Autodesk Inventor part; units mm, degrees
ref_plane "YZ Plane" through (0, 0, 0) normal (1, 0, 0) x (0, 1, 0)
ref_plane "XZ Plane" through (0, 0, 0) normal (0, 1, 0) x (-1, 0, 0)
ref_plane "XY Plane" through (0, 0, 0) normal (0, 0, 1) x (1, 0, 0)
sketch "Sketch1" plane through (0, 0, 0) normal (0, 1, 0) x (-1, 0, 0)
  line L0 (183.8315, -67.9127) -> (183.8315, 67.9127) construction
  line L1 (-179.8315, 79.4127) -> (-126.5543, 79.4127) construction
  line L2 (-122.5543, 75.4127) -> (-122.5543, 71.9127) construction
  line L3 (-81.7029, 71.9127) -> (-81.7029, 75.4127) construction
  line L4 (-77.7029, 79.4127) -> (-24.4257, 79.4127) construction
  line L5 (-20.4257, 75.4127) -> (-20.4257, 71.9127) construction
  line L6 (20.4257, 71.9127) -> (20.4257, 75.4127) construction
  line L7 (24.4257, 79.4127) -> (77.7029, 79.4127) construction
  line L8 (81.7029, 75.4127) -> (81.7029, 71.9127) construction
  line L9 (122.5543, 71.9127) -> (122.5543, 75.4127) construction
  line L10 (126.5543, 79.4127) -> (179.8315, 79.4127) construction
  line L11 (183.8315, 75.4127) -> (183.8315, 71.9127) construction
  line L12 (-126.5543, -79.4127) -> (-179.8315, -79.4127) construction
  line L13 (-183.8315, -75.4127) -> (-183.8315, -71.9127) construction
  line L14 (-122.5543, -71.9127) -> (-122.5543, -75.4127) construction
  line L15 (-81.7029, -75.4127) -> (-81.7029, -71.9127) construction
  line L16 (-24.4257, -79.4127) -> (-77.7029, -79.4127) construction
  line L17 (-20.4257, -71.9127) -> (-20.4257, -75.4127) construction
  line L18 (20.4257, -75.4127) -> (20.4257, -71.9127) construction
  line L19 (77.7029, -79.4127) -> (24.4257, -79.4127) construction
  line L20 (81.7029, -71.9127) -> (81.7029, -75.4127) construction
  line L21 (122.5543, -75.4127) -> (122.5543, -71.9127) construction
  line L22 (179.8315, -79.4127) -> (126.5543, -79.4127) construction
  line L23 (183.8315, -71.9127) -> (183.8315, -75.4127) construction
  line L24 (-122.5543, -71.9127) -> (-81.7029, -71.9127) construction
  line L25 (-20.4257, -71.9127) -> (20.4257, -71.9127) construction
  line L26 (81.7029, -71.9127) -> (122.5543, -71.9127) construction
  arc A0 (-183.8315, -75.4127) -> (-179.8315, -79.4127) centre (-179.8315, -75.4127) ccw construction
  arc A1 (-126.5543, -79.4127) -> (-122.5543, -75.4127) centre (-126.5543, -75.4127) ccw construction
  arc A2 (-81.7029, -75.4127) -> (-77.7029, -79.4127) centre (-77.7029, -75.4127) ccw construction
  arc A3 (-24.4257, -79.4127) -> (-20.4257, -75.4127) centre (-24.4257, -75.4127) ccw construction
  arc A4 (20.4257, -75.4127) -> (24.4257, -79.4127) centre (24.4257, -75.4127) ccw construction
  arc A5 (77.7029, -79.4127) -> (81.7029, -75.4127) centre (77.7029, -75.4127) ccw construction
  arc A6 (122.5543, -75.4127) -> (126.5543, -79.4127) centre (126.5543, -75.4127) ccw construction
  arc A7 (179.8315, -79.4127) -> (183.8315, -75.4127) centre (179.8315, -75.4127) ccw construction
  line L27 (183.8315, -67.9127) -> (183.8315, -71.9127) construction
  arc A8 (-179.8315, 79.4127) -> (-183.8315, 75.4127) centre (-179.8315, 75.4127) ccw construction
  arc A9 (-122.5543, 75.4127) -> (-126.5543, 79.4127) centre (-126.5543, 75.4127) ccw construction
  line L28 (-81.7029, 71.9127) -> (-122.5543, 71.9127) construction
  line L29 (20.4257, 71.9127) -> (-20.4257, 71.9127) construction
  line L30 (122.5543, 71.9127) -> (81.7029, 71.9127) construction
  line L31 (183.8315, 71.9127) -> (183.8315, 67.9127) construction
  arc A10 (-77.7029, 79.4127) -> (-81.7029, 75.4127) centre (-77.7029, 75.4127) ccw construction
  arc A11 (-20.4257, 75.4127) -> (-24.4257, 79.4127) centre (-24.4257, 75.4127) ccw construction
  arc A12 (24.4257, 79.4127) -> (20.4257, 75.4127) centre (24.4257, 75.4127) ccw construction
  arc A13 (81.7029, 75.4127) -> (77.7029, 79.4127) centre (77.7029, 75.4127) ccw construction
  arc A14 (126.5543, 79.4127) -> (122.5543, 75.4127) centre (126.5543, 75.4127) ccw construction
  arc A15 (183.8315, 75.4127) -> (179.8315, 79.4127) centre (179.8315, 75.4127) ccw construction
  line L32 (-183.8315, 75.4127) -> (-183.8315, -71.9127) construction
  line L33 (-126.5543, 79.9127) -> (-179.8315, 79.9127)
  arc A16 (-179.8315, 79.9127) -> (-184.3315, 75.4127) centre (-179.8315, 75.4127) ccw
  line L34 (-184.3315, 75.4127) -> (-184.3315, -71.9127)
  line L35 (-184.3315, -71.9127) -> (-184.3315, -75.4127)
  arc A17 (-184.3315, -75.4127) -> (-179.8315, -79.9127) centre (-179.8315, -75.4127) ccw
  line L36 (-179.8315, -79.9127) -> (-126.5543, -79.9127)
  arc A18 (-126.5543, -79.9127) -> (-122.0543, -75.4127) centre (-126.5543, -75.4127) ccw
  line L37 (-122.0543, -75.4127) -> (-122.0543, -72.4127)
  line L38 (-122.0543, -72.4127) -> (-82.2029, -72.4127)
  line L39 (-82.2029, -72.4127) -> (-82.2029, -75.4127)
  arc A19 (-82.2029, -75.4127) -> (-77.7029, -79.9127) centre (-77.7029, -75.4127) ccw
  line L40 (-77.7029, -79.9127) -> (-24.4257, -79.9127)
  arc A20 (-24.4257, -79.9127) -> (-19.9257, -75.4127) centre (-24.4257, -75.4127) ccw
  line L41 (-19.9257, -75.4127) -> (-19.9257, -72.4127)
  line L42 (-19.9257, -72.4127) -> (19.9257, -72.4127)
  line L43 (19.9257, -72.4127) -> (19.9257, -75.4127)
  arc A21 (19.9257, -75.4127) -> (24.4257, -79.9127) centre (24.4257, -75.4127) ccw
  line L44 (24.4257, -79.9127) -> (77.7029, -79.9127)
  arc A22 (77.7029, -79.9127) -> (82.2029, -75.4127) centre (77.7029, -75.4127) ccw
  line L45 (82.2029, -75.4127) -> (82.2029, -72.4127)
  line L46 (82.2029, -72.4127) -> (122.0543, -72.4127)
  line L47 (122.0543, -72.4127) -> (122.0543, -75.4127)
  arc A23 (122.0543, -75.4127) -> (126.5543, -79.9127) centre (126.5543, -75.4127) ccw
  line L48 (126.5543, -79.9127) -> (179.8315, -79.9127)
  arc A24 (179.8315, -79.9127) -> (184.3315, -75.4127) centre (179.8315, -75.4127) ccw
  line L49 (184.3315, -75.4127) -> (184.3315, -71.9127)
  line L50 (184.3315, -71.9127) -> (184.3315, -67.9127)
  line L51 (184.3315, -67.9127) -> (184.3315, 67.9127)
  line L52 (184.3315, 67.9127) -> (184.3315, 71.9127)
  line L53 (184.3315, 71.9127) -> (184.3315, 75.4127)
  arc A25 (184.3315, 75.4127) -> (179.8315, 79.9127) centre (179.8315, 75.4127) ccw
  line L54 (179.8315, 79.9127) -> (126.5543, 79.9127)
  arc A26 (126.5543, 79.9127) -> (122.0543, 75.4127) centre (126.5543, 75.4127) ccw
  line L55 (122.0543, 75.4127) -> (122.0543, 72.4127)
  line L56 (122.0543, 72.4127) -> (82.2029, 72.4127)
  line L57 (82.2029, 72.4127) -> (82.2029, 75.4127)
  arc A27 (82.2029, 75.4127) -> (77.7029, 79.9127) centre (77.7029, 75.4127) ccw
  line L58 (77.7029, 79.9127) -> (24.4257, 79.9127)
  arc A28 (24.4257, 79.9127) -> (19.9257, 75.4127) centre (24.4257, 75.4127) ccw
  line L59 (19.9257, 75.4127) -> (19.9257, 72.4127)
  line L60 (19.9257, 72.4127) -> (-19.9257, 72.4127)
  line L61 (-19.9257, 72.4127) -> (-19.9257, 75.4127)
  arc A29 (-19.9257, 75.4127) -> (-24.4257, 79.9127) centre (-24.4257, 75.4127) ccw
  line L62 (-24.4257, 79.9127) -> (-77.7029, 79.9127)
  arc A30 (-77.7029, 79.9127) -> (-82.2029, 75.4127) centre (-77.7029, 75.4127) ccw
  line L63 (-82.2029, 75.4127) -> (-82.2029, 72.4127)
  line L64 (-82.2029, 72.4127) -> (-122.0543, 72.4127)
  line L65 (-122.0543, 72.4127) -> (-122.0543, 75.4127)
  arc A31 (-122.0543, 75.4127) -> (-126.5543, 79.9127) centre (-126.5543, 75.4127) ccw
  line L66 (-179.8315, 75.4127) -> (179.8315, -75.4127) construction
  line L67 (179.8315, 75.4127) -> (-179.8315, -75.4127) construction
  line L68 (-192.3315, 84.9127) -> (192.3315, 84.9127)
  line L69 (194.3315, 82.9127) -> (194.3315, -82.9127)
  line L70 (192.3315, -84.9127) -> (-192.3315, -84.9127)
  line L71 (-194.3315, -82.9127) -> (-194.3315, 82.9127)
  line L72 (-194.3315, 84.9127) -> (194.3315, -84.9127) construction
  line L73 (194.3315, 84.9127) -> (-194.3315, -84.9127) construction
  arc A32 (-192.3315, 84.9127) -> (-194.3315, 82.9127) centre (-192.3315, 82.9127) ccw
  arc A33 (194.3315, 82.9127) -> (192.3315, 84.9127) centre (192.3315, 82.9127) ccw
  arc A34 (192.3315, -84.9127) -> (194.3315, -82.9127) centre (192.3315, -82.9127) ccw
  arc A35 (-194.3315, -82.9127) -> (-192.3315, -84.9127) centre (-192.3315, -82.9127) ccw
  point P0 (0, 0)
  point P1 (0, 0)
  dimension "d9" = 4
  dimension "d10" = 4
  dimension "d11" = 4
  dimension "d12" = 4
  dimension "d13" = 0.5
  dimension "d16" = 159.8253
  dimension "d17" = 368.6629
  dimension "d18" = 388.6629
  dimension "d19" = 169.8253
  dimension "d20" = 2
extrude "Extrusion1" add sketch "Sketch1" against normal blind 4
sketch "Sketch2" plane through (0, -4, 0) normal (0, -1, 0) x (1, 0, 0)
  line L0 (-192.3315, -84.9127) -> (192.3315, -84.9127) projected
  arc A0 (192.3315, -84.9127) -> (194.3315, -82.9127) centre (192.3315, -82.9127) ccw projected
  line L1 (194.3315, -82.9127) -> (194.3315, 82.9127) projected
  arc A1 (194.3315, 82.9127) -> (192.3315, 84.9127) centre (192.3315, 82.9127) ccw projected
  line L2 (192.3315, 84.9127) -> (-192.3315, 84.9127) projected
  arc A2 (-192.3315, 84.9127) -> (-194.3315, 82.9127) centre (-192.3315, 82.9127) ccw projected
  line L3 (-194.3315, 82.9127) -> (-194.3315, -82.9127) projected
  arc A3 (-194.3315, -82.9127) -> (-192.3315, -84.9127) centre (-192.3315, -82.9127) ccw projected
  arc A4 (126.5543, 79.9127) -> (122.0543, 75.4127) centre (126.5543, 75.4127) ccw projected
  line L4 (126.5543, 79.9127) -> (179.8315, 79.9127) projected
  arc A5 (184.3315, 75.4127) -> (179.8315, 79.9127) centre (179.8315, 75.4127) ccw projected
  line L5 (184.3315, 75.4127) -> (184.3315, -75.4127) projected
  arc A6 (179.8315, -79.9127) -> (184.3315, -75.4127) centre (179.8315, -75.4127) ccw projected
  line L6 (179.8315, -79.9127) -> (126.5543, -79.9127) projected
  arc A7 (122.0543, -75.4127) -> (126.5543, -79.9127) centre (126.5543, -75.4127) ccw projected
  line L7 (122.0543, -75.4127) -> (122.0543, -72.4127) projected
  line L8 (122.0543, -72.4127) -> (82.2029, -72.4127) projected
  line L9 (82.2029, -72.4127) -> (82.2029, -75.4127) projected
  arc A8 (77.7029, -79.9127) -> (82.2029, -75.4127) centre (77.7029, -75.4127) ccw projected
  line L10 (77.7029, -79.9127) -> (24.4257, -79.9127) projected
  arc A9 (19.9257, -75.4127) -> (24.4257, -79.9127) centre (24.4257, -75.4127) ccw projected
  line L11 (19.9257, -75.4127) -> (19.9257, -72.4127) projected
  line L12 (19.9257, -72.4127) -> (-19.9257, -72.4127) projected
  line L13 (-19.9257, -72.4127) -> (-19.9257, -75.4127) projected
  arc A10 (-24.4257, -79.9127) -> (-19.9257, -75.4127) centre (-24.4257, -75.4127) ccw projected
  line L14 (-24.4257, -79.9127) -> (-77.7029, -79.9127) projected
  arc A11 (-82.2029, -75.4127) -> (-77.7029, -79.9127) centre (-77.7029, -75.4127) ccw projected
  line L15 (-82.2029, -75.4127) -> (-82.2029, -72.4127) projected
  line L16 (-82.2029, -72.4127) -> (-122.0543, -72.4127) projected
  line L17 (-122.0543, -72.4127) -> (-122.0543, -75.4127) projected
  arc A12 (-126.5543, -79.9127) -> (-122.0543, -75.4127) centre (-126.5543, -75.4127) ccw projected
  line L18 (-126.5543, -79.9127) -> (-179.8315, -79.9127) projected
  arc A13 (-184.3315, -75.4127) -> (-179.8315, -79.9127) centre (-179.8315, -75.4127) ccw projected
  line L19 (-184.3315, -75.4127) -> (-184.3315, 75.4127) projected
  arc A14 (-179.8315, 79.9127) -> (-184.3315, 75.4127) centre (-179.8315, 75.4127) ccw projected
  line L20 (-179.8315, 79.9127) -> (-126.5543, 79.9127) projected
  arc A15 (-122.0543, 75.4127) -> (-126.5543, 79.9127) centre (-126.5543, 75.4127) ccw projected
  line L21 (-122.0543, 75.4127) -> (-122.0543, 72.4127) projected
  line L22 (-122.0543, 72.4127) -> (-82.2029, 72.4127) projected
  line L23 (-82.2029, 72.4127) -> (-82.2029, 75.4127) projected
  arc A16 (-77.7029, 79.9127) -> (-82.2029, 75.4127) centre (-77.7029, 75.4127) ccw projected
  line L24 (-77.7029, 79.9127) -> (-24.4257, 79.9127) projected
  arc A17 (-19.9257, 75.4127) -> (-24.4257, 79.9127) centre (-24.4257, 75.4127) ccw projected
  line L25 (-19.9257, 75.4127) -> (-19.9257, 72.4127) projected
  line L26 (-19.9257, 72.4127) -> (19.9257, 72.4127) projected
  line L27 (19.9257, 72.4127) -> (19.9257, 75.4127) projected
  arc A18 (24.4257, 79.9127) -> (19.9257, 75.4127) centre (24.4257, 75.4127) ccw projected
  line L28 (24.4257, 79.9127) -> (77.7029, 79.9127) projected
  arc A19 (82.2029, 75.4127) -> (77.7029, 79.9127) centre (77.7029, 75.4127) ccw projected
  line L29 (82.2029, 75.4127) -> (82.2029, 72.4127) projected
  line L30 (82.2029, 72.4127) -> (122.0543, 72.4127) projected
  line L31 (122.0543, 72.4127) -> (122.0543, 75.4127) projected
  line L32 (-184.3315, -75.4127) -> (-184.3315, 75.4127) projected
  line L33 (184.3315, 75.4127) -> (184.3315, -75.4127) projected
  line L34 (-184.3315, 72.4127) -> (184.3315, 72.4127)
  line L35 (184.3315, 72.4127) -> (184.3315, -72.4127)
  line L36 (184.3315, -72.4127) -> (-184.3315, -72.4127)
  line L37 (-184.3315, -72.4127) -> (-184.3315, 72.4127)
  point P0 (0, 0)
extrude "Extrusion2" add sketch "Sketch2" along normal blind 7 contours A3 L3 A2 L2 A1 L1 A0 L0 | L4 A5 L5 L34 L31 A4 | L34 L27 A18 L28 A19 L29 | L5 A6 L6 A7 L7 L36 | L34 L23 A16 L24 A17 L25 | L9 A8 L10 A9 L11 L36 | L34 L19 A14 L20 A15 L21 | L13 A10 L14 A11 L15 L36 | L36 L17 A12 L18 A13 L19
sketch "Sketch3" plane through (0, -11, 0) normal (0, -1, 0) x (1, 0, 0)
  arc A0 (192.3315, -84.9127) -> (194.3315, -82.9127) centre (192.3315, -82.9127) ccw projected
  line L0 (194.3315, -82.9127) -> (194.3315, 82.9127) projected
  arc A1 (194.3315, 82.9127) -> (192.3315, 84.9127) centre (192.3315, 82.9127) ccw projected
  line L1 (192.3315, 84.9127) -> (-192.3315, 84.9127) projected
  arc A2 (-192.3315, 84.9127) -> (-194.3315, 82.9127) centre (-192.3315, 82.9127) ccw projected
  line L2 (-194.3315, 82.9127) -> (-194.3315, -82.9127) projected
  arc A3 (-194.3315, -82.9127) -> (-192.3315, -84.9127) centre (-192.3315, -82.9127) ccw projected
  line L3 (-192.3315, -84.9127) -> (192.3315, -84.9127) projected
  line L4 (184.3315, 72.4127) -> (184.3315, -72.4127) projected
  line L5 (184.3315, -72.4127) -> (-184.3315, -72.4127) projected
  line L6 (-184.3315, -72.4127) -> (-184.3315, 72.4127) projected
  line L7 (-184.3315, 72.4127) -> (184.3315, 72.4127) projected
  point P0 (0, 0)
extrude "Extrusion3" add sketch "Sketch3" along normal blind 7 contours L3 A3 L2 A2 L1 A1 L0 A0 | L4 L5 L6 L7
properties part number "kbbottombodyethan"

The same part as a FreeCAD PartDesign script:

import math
import FreeCAD as App
import Part
import Sketcher

doc = App.newDocument("Part")
body = doc.addObject("PartDesign::Body", "Body")

# Sketch on XZ plane
sketch1 = body.newObject("Sketcher::SketchObject", "Sketch")
sketch1.AttachmentSupport = (doc.getObject("XZ_Plane"), [""])
sketch1.MapMode = "FlatFace"
sketch1.addGeometry([
    Part.LineSegment(App.Vector(-192.3, 84.9, 0), App.Vector(192.3, 84.9, 0)),  # 0
    Part.ArcOfCircle(Part.Circle(App.Vector(192.3, 82.9, 0), App.Vector(0, 0, 1), 2), math.radians(0), math.radians(90)),  # 1
    Part.LineSegment(App.Vector(194.3, 82.9, 0), App.Vector(194.3, -82.9, 0)),  # 2
    Part.ArcOfCircle(Part.Circle(App.Vector(192.3, -82.9, 0), App.Vector(0, 0, 1), 2), math.radians(-90), math.radians(0)),  # 3
    Part.LineSegment(App.Vector(192.3, -84.9, 0), App.Vector(-192.3, -84.9, 0)),  # 4
    Part.ArcOfCircle(Part.Circle(App.Vector(-192.3, -82.9, 0), App.Vector(0, 0, 1), 2), math.radians(180), math.radians(270)),  # 5
    Part.LineSegment(App.Vector(-194.3, -82.9, 0), App.Vector(-194.3, 82.9, 0)),  # 6
    Part.ArcOfCircle(Part.Circle(App.Vector(-192.3, 82.9, 0), App.Vector(0, 0, 1), 2), math.radians(90), math.radians(180)),  # 7
    Part.LineSegment(App.Vector(179.8, 79.9, 0), App.Vector(126.6, 79.9, 0)),  # 8
    Part.ArcOfCircle(Part.Circle(App.Vector(126.6, 75.4, 0), App.Vector(0, 0, 1), 4.5), math.radians(90), math.radians(180)),  # 9
    Part.LineSegment(App.Vector(122.1, 75.4, 0), App.Vector(122.1, 72.4, 0)),  # 10
    Part.LineSegment(App.Vector(122.1, 72.4, 0), App.Vector(82.2, 72.4, 0)),  # 11
    Part.LineSegment(App.Vector(82.2, 72.4, 0), App.Vector(82.2, 75.4, 0)),  # 12
    Part.ArcOfCircle(Part.Circle(App.Vector(77.7, 75.4, 0), App.Vector(0, 0, 1), 4.5), math.radians(0), math.radians(90)),  # 13
    Part.LineSegment(App.Vector(77.7, 79.9, 0), App.Vector(24.4, 79.9, 0)),  # 14
    Part.ArcOfCircle(Part.Circle(App.Vector(24.4, 75.4, 0), App.Vector(0, 0, 1), 4.5), math.radians(90), math.radians(180)),  # 15
    Part.LineSegment(App.Vector(19.9, 75.4, 0), App.Vector(19.9, 72.4, 0)),  # 16
    Part.LineSegment(App.Vector(19.9, 72.4, 0), App.Vector(-19.9, 72.4, 0)),  # 17
    Part.LineSegment(App.Vector(-19.9, 72.4, 0), App.Vector(-19.9, 75.4, 0)),  # 18
    Part.ArcOfCircle(Part.Circle(App.Vector(-24.4, 75.4, 0), App.Vector(0, 0, 1), 4.5), math.radians(0), math.radians(90)),  # 19
    Part.LineSegment(App.Vector(-24.4, 79.9, 0), App.Vector(-77.7, 79.9, 0)),  # 20
    Part.ArcOfCircle(Part.Circle(App.Vector(-77.7, 75.4, 0), App.Vector(0, 0, 1), 4.5), math.radians(90), math.radians(180)),  # 21
    Part.LineSegment(App.Vector(-82.2, 75.4, 0), App.Vector(-82.2, 72.4, 0)),  # 22
    Part.LineSegment(App.Vector(-82.2, 72.4, 0), App.Vector(-122.1, 72.4, 0)),  # 23
    Part.LineSegment(App.Vector(-122.1, 72.4, 0), App.Vector(-122.1, 75.4, 0)),  # 24
    Part.ArcOfCircle(Part.Circle(App.Vector(-126.6, 75.4, 0), App.Vector(0, 0, 1), 4.5), math.radians(0), math.radians(90)),  # 25
    Part.LineSegment(App.Vector(-126.6, 79.9, 0), App.Vector(-179.8, 79.9, 0)),  # 26
    Part.ArcOfCircle(Part.Circle(App.Vector(-179.8, 75.4, 0), App.Vector(0, 0, 1), 4.5), math.radians(90), math.radians(180)),  # 27
    Part.LineSegment(App.Vector(-184.3, 75.4, 0), App.Vector(-184.3, -75.4, 0)),  # 28
    Part.ArcOfCircle(Part.Circle(App.Vector(-179.8, -75.4, 0), App.Vector(0, 0, 1), 4.5), math.radians(180), math.radians(270)),  # 29
    Part.LineSegment(App.Vector(-179.8, -79.9, 0), App.Vector(-126.6, -79.9, 0)),  # 30
    Part.ArcOfCircle(Part.Circle(App.Vector(-126.6, -75.4, 0), App.Vector(0, 0, 1), 4.5), math.radians(-90), math.radians(0)),  # 31
    Part.LineSegment(App.Vector(-122.1, -75.4, 0), App.Vector(-122.1, -72.4, 0)),  # 32
    Part.LineSegment(App.Vector(-122.1, -72.4, 0), App.Vector(-82.2, -72.4, 0)),  # 33
    Part.LineSegment(App.Vector(-82.2, -72.4, 0), App.Vector(-82.2, -75.4, 0)),  # 34
    Part.ArcOfCircle(Part.Circle(App.Vector(-77.7, -75.4, 0), App.Vector(0, 0, 1), 4.5), math.radians(180), math.radians(270)),  # 35
    Part.LineSegment(App.Vector(-77.7, -79.9, 0), App.Vector(-24.4, -79.9, 0)),  # 36
    Part.ArcOfCircle(Part.Circle(App.Vector(-24.4, -75.4, 0), App.Vector(0, 0, 1), 4.5), math.radians(-90), math.radians(0)),  # 37
    Part.LineSegment(App.Vector(-19.9, -75.4, 0), App.Vector(-19.9, -72.4, 0)),  # 38
    Part.LineSegment(App.Vector(-19.9, -72.4, 0), App.Vector(19.9, -72.4, 0)),  # 39
    Part.LineSegment(App.Vector(19.9, -72.4, 0), App.Vector(19.9, -75.4, 0)),  # 40
    Part.ArcOfCircle(Part.Circle(App.Vector(24.4, -75.4, 0), App.Vector(0, 0, 1), 4.5), math.radians(180), math.radians(270)),  # 41
    Part.LineSegment(App.Vector(24.4, -79.9, 0), App.Vector(77.7, -79.9, 0)),  # 42
    Part.ArcOfCircle(Part.Circle(App.Vector(77.7, -75.4, 0), App.Vector(0, 0, 1), 4.5), math.radians(-90), math.radians(0)),  # 43
    Part.LineSegment(App.Vector(82.2, -75.4, 0), App.Vector(82.2, -72.4, 0)),  # 44
    Part.LineSegment(App.Vector(82.2, -72.4, 0), App.Vector(122.1, -72.4, 0)),  # 45
    Part.LineSegment(App.Vector(122.1, -72.4, 0), App.Vector(122.1, -75.4, 0)),  # 46
    Part.ArcOfCircle(Part.Circle(App.Vector(126.6, -75.4, 0), App.Vector(0, 0, 1), 4.5), math.radians(180), math.radians(270)),  # 47
    Part.LineSegment(App.Vector(126.6, -79.9, 0), App.Vector(179.8, -79.9, 0)),  # 48
    Part.ArcOfCircle(Part.Circle(App.Vector(179.8, -75.4, 0), App.Vector(0, 0, 1), 4.5), math.radians(-90), math.radians(0)),  # 49
    Part.LineSegment(App.Vector(184.3, -75.4, 0), App.Vector(184.3, 75.4, 0)),  # 50
    Part.ArcOfCircle(Part.Circle(App.Vector(179.8, 75.4, 0), App.Vector(0, 0, 1), 4.5), math.radians(0), math.radians(90)),  # 51
], False)
sketch1.addConstraint([
    Sketcher.Constraint("Tangent", 0, 2, 1, 2),
    Sketcher.Constraint("Tangent", 1, 1, 2, 1),
    Sketcher.Constraint("Tangent", 2, 2, 3, 2),
    Sketcher.Constraint("Tangent", 3, 1, 4, 1),
    Sketcher.Constraint("Tangent", 4, 2, 5, 2),
    Sketcher.Constraint("Tangent", 5, 1, 6, 1),
    Sketcher.Constraint("Tangent", 6, 2, 7, 2),
    Sketcher.Constraint("Tangent", 7, 1, 0, 1),
    Sketcher.Constraint("Tangent", 8, 2, 9, 1),
    Sketcher.Constraint("Tangent", 9, 2, 10, 1),
    Sketcher.Constraint("Coincident", 10, 2, 11, 1),
    Sketcher.Constraint("Coincident", 11, 2, 12, 1),
    Sketcher.Constraint("Tangent", 12, 2, 13, 1),
    Sketcher.Constraint("Tangent", 13, 2, 14, 1),
    Sketcher.Constraint("Tangent", 14, 2, 15, 1),
    Sketcher.Constraint("Tangent", 15, 2, 16, 1),
    Sketcher.Constraint("Coincident", 16, 2, 17, 1),
    Sketcher.Constraint("Coincident", 17, 2, 18, 1),
    Sketcher.Constraint("Tangent", 18, 2, 19, 1),
    Sketcher.Constraint("Tangent", 19, 2, 20, 1),
    Sketcher.Constraint("Tangent", 20, 2, 21, 1),
    Sketcher.Constraint("Tangent", 21, 2, 22, 1),
    Sketcher.Constraint("Coincident", 22, 2, 23, 1),
    Sketcher.Constraint("Coincident", 23, 2, 24, 1),
    Sketcher.Constraint("Tangent", 24, 2, 25, 1),
    Sketcher.Constraint("Tangent", 25, 2, 26, 1),
    Sketcher.Constraint("Tangent", 26, 2, 27, 1),
    Sketcher.Constraint("Tangent", 27, 2, 28, 1),
    Sketcher.Constraint("Tangent", 28, 2, 29, 1),
    Sketcher.Constraint("Tangent", 29, 2, 30, 1),
    Sketcher.Constraint("Tangent", 30, 2, 31, 1),
    Sketcher.Constraint("Tangent", 31, 2, 32, 1),
    Sketcher.Constraint("Coincident", 32, 2, 33, 1),
    Sketcher.Constraint("Coincident", 33, 2, 34, 1),
    Sketcher.Constraint("Tangent", 34, 2, 35, 1),
    Sketcher.Constraint("Tangent", 35, 2, 36, 1),
    Sketcher.Constraint("Tangent", 36, 2, 37, 1),
    Sketcher.Constraint("Tangent", 37, 2, 38, 1),
    Sketcher.Constraint("Coincident", 38, 2, 39, 1),
    Sketcher.Constraint("Coincident", 39, 2, 40, 1),
    Sketcher.Constraint("Tangent", 40, 2, 41, 1),
    Sketcher.Constraint("Tangent", 41, 2, 42, 1),
    Sketcher.Constraint("Tangent", 42, 2, 43, 1),
    Sketcher.Constraint("Tangent", 43, 2, 44, 1),
    Sketcher.Constraint("Coincident", 44, 2, 45, 1),
    Sketcher.Constraint("Coincident", 45, 2, 46, 1),
    Sketcher.Constraint("Tangent", 46, 2, 47, 1),
    Sketcher.Constraint("Tangent", 47, 2, 48, 1),
    Sketcher.Constraint("Tangent", 48, 2, 49, 1),
    Sketcher.Constraint("Tangent", 49, 2, 50, 1),
    Sketcher.Constraint("Tangent", 50, 2, 51, 1),
    Sketcher.Constraint("Tangent", 51, 2, 8, 1),
    Sketcher.Constraint("Horizontal", 0),
    Sketcher.Constraint("Vertical", 2),
    Sketcher.Constraint("Horizontal", 4),
    Sketcher.Constraint("Vertical", 6),
    Sketcher.Constraint("Horizontal", 8),
    Sketcher.Constraint("Vertical", 10),
    Sketcher.Constraint("Horizontal", 11),
    Sketcher.Constraint("Vertical", 12),
    Sketcher.Constraint("Horizontal", 14),
    Sketcher.Constraint("Vertical", 16),
    Sketcher.Constraint("Horizontal", 17),
    Sketcher.Constraint("Vertical", 18),
    Sketcher.Constraint("Horizontal", 20),
    Sketcher.Constraint("Vertical", 22),
    Sketcher.Constraint("Horizontal", 23),
    Sketcher.Constraint("Vertical", 24),
    Sketcher.Constraint("Horizontal", 26),
    Sketcher.Constraint("Vertical", 28),
    Sketcher.Constraint("Horizontal", 30),
    Sketcher.Constraint("Vertical", 32),
    Sketcher.Constraint("Horizontal", 33),
    Sketcher.Constraint("Vertical", 34),
    Sketcher.Constraint("Horizontal", 36),
    Sketcher.Constraint("Vertical", 38),
    Sketcher.Constraint("Horizontal", 39),
    Sketcher.Constraint("Vertical", 40),
    Sketcher.Constraint("Horizontal", 42),
    Sketcher.Constraint("Vertical", 44),
    Sketcher.Constraint("Horizontal", 45),
    Sketcher.Constraint("Vertical", 46),
    Sketcher.Constraint("Horizontal", 48),
    Sketcher.Constraint("Vertical", 50),
    Sketcher.Constraint("Equal", 1, 3),
    Sketcher.Constraint("Equal", 3, 5),
    Sketcher.Constraint("Equal", 5, 7),
    Sketcher.Constraint("Equal", 9, 13),
    Sketcher.Constraint("Equal", 13, 15),
    Sketcher.Constraint("Equal", 15, 19),
    Sketcher.Constraint("Equal", 19, 21),
    Sketcher.Constraint("Equal", 21, 25),
    Sketcher.Constraint("Equal", 25, 27),
    Sketcher.Constraint("Equal", 27, 29),
    Sketcher.Constraint("Equal", 29, 31),
    Sketcher.Constraint("Equal", 31, 35),
    Sketcher.Constraint("Equal", 35, 37),
    Sketcher.Constraint("Equal", 37, 41),
    Sketcher.Constraint("Equal", 41, 43),
    Sketcher.Constraint("Equal", 43, 47),
    Sketcher.Constraint("Equal", 47, 49),
    Sketcher.Constraint("Equal", 49, 51),
    Sketcher.Constraint("Symmetric", 1, 3, 5, 3, -1, 1),
    Sketcher.Constraint("Symmetric", 9, 3, 31, 3, -1, 1),
    Sketcher.Constraint("Symmetric", 13, 3, 35, 3, -1, 1),
    Sketcher.Constraint("Symmetric", 19, 3, 41, 3, -1, 1),
    Sketcher.Constraint("Symmetric", 25, 3, 47, 3, -1, 1),
    Sketcher.Constraint("Symmetric", 16, 2, 38, 2, -1, 1),
    Sketcher.Constraint("Symmetric", 22, 2, 44, 2, -1, 1),
    Sketcher.Constraint("Symmetric", 15, 3, 19, 3, -2),
    Sketcher.Constraint("Symmetric", 9, 3, 25, 3, -2),
    Sketcher.Constraint("Symmetric", 11, 2, 22, 2, -2),
    Sketcher.Constraint("Horizontal", 9, 3, 13, 3),
    Sketcher.Constraint("Horizontal", 11, 2, 16, 2),
    Sketcher.Constraint("Horizontal", 33, 2, 38, 2),
    Sketcher.Constraint("Equal", 8, 14),
    Sketcher.Constraint("Equal", 11, 17),
    Sketcher.Constraint("Equal", 20, 26),
    Sketcher.Constraint("Radius", 1, 2.0),
    Sketcher.Constraint("Radius", 9, 4.5),
    Sketcher.Constraint("DistanceY", 10, 2, 10, 1, 3.0),
    Sketcher.Constraint("DistanceX", 0, 1, 0, 2, 384.663),
    Sketcher.Constraint("DistanceX", 8, 2, 8, 1, 53.2772),
    Sketcher.Constraint("DistanceX", 11, 2, 11, 1, 39.8514),
    Sketcher.Constraint("DistanceY", 2, 2, 2, 1, 165.8254),
    Sketcher.Constraint("DistanceY", 28, 2, 28, 1, 150.8254),
])
pad1 = body.newObject("PartDesign::Pad", "Pad")
pad1.Profile = sketch1
pad1.Length = 4

# Sketch on XZ plane
sketch2 = body.newObject("Sketcher::SketchObject", "Sketch001")
sketch2.AttachmentSupport = (doc.getObject("XZ_Plane"), [""])
sketch2.MapMode = "FlatFace"
sketch2.AttachmentOffset = App.Placement(App.Vector(0, 0, 4), App.Rotation())
sketch2.addGeometry([
    Part.ArcOfCircle(Part.Circle(App.Vector(-192.3, -82.9, 0), App.Vector(0, 0, 1), 2), math.radians(180), math.radians(270)),  # 0
    Part.LineSegment(App.Vector(-192.3, -84.9, 0), App.Vector(192.3, -84.9, 0)),  # 1
    Part.ArcOfCircle(Part.Circle(App.Vector(192.3, -82.9, 0), App.Vector(0, 0, 1), 2), math.radians(-90), math.radians(0)),  # 2
    Part.LineSegment(App.Vector(194.3, -82.9, 0), App.Vector(194.3, 82.9, 0)),  # 3
    Part.ArcOfCircle(Part.Circle(App.Vector(192.3, 82.9, 0), App.Vector(0, 0, 1), 2), math.radians(0), math.radians(90)),  # 4
    Part.LineSegment(App.Vector(192.3, 84.9, 0), App.Vector(-192.3, 84.9, 0)),  # 5
    Part.ArcOfCircle(Part.Circle(App.Vector(-192.3, 82.9, 0), App.Vector(0, 0, 1), 2), math.radians(90), math.radians(180)),  # 6
    Part.LineSegment(App.Vector(-194.3, 82.9, 0), App.Vector(-194.3, -82.9, 0)),  # 7
    Part.LineSegment(App.Vector(184.3, 72.4, 0), App.Vector(184.3, -72.4, 0)),  # 8
    Part.LineSegment(App.Vector(184.3, -72.4, 0), App.Vector(-184.3, -72.4, 0)),  # 9
    Part.LineSegment(App.Vector(-184.3, -72.4, 0), App.Vector(-184.3, 72.4, 0)),  # 10
    Part.LineSegment(App.Vector(-184.3, 72.4, 0), App.Vector(184.3, 72.4, 0)),  # 11
], False)
sketch2.addConstraint([
    Sketcher.Constraint("Tangent", 0, 2, 1, 1),
    Sketcher.Constraint("Tangent", 1, 2, 2, 1),
    Sketcher.Constraint("Tangent", 2, 2, 3, 1),
    Sketcher.Constraint("Tangent", 3, 2, 4, 1),
    Sketcher.Constraint("Tangent", 4, 2, 5, 1),
    Sketcher.Constraint("Tangent", 5, 2, 6, 1),
    Sketcher.Constraint("Tangent", 6, 2, 7, 1),
    Sketcher.Constraint("Tangent", 7, 2, 0, 1),
    Sketcher.Constraint("Coincident", 8, 2, 9, 1),
    Sketcher.Constraint("Coincident", 9, 2, 10, 1),
    Sketcher.Constraint("Coincident", 10, 2, 11, 1),
    Sketcher.Constraint("Coincident", 11, 2, 8, 1),
    Sketcher.Constraint("Horizontal", 1),
    Sketcher.Constraint("Vertical", 3),
    Sketcher.Constraint("Horizontal", 5),
    Sketcher.Constraint("Vertical", 7),
    Sketcher.Constraint("Vertical", 8),
    Sketcher.Constraint("Horizontal", 9),
    Sketcher.Constraint("Vertical", 10),
    Sketcher.Constraint("Horizontal", 11),
    Sketcher.Constraint("Equal", 0, 2),
    Sketcher.Constraint("Equal", 2, 4),
    Sketcher.Constraint("Equal", 4, 6),
    Sketcher.Constraint("Symmetric", 0, 3, 4, 3, -1, 1),
    Sketcher.Constraint("Symmetric", 8, 2, 10, 2, -1, 1),
    Sketcher.Constraint("Radius", 0, 2.0),
    Sketcher.Constraint("DistanceX", 8, 2, 2, 3, 8.0),
    Sketcher.Constraint("DistanceY", 2, 3, 8, 2, 10.5),
    Sketcher.Constraint("DistanceX", 1, 1, 1, 2, 384.663),
    Sketcher.Constraint("DistanceY", 3, 1, 3, 2, 165.8254),
])
pad2 = body.newObject("PartDesign::Pad", "Pad001")
pad2.Profile = sketch2
pad2.Length = 7

# Sketch on XZ plane
sketch3 = body.newObject("Sketcher::SketchObject", "Sketch002")
sketch3.AttachmentSupport = (doc.getObject("XZ_Plane"), [""])
sketch3.MapMode = "FlatFace"
sketch3.AttachmentOffset = App.Placement(App.Vector(0, 0, 11), App.Rotation())
sketch3.addGeometry([
    Part.LineSegment(App.Vector(-192.3, -84.9, 0), App.Vector(192.3, -84.9, 0)),  # 0
    Part.ArcOfCircle(Part.Circle(App.Vector(192.3, -82.9, 0), App.Vector(0, 0, 1), 2), math.radians(-90), math.radians(0)),  # 1
    Part.LineSegment(App.Vector(194.3, -82.9, 0), App.Vector(194.3, 82.9, 0)),  # 2
    Part.ArcOfCircle(Part.Circle(App.Vector(192.3, 82.9, 0), App.Vector(0, 0, 1), 2), math.radians(0), math.radians(90)),  # 3
    Part.LineSegment(App.Vector(192.3, 84.9, 0), App.Vector(-192.3, 84.9, 0)),  # 4
    Part.ArcOfCircle(Part.Circle(App.Vector(-192.3, 82.9, 0), App.Vector(0, 0, 1), 2), math.radians(90), math.radians(180)),  # 5
    Part.LineSegment(App.Vector(-194.3, 82.9, 0), App.Vector(-194.3, -82.9, 0)),  # 6
    Part.ArcOfCircle(Part.Circle(App.Vector(-192.3, -82.9, 0), App.Vector(0, 0, 1), 2), math.radians(180), math.radians(270)),  # 7
], False)
sketch3.addConstraint([
    Sketcher.Constraint("Tangent", 0, 2, 1, 1),
    Sketcher.Constraint("Tangent", 1, 2, 2, 1),
    Sketcher.Constraint("Tangent", 2, 2, 3, 1),
    Sketcher.Constraint("Tangent", 3, 2, 4, 1),
    Sketcher.Constraint("Tangent", 4, 2, 5, 1),
    Sketcher.Constraint("Tangent", 5, 2, 6, 1),
    Sketcher.Constraint("Tangent", 6, 2, 7, 1),
    Sketcher.Constraint("Tangent", 7, 2, 0, 1),
    Sketcher.Constraint("Horizontal", 0),
    Sketcher.Constraint("Vertical", 2),
    Sketcher.Constraint("Horizontal", 4),
    Sketcher.Constraint("Vertical", 6),
    Sketcher.Constraint("Equal", 1, 3),
    Sketcher.Constraint("Equal", 3, 5),
    Sketcher.Constraint("Equal", 5, 7),
    Sketcher.Constraint("Symmetric", 1, 3, 5, 3, -1, 1),
    Sketcher.Constraint("Radius", 1, 2.0),
    Sketcher.Constraint("DistanceX", 0, 1, 0, 2, 384.663),
    Sketcher.Constraint("DistanceY", 2, 1, 2, 2, 165.8254),
])
pad3 = body.newObject("PartDesign::Pad", "Pad002")
pad3.Profile = sketch3
pad3.Length = 7

doc.recompute()
